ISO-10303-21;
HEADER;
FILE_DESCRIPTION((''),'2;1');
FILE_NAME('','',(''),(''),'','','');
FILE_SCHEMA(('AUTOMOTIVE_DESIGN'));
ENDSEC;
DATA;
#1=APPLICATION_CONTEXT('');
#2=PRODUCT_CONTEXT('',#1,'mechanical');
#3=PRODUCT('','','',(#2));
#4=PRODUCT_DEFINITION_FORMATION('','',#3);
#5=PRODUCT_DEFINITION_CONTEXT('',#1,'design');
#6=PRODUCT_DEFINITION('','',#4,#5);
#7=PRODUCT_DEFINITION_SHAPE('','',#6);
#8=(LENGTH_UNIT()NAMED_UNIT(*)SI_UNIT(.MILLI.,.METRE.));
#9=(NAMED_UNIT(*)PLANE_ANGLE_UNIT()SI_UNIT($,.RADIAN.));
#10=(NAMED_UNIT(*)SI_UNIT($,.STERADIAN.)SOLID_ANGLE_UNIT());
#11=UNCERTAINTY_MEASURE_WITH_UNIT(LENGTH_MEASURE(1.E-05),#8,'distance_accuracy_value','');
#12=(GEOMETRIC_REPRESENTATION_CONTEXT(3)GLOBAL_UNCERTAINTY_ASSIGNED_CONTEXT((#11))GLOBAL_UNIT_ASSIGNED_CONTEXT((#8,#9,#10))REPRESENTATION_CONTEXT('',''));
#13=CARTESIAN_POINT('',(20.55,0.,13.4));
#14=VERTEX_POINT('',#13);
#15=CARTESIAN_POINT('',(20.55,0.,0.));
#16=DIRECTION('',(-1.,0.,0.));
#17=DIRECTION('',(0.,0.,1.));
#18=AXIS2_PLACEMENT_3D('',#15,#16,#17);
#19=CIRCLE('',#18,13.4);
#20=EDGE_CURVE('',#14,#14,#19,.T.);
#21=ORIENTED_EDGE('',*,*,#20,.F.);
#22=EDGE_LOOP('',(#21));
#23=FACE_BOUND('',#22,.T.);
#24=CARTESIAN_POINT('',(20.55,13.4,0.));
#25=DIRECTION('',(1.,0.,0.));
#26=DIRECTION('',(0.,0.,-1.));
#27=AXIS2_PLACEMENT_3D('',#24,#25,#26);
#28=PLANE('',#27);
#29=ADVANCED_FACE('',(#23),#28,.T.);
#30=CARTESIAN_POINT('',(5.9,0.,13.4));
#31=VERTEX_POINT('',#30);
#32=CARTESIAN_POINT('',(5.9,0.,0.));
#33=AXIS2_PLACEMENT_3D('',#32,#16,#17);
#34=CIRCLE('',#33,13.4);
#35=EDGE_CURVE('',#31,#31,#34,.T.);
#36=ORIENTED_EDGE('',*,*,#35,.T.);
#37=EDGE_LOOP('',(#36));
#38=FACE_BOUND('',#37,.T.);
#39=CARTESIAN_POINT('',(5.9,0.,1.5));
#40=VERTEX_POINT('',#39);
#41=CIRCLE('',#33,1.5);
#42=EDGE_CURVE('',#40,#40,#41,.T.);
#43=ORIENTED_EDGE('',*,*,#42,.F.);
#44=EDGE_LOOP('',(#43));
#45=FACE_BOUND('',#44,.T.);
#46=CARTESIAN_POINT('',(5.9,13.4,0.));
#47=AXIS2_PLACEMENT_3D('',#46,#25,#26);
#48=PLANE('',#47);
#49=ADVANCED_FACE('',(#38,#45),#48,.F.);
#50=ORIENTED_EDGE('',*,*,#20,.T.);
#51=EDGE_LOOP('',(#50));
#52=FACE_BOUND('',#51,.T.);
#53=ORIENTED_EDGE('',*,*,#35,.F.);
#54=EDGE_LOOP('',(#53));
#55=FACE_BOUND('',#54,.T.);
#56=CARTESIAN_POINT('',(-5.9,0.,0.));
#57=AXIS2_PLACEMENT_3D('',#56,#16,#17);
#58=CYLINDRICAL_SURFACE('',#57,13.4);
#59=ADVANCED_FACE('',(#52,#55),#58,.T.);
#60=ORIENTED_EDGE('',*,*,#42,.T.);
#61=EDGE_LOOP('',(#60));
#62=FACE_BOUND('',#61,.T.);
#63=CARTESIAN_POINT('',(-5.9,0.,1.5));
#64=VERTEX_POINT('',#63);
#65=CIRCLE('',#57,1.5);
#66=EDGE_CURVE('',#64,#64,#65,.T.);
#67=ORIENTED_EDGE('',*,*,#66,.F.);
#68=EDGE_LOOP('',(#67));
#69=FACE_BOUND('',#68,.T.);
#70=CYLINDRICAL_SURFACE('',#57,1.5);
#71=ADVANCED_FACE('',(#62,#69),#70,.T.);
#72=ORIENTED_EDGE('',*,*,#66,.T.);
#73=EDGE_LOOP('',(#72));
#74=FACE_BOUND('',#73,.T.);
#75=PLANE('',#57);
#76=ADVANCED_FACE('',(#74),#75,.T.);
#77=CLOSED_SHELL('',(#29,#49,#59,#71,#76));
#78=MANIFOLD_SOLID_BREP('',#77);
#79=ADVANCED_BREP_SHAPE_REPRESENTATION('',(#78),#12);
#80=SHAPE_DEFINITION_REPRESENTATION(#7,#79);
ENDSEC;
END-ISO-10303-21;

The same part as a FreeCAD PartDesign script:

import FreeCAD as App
import Part
import Sketcher


def add_polygon(sketch, points):
    """Adds a closed chain of lines whose ends are joined by coincident constraints."""
    first, n = sketch.GeometryCount, len(points)
    for a, b in zip(points, points[1:] + points[:1]):
        sketch.addGeometry(Part.LineSegment(App.Vector(*a, 0), App.Vector(*b, 0)), False)
    for i in range(n):
        sketch.addConstraint(Sketcher.Constraint("Coincident", first + i, 2, first + (i + 1) % n, 1))

doc = App.newDocument("Part")
body = doc.addObject("PartDesign::Body", "Body")

sketch1 = body.newObject("Sketcher::SketchObject", "Sketch")
sketch1.AttachmentSupport = (doc.getObject("XY_Plane"), [""])
sketch1.MapMode = "FlatFace"
add_polygon(sketch1, [(-5.9, 0), (20.55, 0), (20.55, 13.4), (5.9, 13.4), (5.9, 1.5), (-5.9, 1.5)])
sketch1.addConstraint(Sketcher.Constraint("Horizontal", 0))
sketch1.addConstraint(Sketcher.Constraint("Vertical", 1))
sketch1.addConstraint(Sketcher.Constraint("Horizontal", 2))
sketch1.addConstraint(Sketcher.Constraint("Vertical", 3))
sketch1.addConstraint(Sketcher.Constraint("Horizontal", 4))
sketch1.addConstraint(Sketcher.Constraint("Vertical", 5))
sketch1.addConstraint(Sketcher.Constraint("PointOnObject", 0, 2, -1))
sketch1.addConstraint(Sketcher.Constraint("DistanceX", 4, 2, 4, 1, 11.8))
sketch1.addConstraint(Sketcher.Constraint("DistanceY", 1, 1, 1, 2, 13.4))
sketch1.addConstraint(Sketcher.Constraint("DistanceY", 3, 2, 3, 1, 11.9))
sketch1.addConstraint(Sketcher.Constraint("DistanceX", 0, 1, 0, 2, 26.45))
sketch1.addConstraint(Sketcher.Constraint("DistanceX", -1, 1, 2, 2, 5.9))
revolution = body.newObject("PartDesign::Revolution", "Revolution")
revolution.Profile = sketch1
revolution.ReferenceAxis = (sketch1, ["H_Axis"])
revolution.Angle = 360

doc.recompute()
